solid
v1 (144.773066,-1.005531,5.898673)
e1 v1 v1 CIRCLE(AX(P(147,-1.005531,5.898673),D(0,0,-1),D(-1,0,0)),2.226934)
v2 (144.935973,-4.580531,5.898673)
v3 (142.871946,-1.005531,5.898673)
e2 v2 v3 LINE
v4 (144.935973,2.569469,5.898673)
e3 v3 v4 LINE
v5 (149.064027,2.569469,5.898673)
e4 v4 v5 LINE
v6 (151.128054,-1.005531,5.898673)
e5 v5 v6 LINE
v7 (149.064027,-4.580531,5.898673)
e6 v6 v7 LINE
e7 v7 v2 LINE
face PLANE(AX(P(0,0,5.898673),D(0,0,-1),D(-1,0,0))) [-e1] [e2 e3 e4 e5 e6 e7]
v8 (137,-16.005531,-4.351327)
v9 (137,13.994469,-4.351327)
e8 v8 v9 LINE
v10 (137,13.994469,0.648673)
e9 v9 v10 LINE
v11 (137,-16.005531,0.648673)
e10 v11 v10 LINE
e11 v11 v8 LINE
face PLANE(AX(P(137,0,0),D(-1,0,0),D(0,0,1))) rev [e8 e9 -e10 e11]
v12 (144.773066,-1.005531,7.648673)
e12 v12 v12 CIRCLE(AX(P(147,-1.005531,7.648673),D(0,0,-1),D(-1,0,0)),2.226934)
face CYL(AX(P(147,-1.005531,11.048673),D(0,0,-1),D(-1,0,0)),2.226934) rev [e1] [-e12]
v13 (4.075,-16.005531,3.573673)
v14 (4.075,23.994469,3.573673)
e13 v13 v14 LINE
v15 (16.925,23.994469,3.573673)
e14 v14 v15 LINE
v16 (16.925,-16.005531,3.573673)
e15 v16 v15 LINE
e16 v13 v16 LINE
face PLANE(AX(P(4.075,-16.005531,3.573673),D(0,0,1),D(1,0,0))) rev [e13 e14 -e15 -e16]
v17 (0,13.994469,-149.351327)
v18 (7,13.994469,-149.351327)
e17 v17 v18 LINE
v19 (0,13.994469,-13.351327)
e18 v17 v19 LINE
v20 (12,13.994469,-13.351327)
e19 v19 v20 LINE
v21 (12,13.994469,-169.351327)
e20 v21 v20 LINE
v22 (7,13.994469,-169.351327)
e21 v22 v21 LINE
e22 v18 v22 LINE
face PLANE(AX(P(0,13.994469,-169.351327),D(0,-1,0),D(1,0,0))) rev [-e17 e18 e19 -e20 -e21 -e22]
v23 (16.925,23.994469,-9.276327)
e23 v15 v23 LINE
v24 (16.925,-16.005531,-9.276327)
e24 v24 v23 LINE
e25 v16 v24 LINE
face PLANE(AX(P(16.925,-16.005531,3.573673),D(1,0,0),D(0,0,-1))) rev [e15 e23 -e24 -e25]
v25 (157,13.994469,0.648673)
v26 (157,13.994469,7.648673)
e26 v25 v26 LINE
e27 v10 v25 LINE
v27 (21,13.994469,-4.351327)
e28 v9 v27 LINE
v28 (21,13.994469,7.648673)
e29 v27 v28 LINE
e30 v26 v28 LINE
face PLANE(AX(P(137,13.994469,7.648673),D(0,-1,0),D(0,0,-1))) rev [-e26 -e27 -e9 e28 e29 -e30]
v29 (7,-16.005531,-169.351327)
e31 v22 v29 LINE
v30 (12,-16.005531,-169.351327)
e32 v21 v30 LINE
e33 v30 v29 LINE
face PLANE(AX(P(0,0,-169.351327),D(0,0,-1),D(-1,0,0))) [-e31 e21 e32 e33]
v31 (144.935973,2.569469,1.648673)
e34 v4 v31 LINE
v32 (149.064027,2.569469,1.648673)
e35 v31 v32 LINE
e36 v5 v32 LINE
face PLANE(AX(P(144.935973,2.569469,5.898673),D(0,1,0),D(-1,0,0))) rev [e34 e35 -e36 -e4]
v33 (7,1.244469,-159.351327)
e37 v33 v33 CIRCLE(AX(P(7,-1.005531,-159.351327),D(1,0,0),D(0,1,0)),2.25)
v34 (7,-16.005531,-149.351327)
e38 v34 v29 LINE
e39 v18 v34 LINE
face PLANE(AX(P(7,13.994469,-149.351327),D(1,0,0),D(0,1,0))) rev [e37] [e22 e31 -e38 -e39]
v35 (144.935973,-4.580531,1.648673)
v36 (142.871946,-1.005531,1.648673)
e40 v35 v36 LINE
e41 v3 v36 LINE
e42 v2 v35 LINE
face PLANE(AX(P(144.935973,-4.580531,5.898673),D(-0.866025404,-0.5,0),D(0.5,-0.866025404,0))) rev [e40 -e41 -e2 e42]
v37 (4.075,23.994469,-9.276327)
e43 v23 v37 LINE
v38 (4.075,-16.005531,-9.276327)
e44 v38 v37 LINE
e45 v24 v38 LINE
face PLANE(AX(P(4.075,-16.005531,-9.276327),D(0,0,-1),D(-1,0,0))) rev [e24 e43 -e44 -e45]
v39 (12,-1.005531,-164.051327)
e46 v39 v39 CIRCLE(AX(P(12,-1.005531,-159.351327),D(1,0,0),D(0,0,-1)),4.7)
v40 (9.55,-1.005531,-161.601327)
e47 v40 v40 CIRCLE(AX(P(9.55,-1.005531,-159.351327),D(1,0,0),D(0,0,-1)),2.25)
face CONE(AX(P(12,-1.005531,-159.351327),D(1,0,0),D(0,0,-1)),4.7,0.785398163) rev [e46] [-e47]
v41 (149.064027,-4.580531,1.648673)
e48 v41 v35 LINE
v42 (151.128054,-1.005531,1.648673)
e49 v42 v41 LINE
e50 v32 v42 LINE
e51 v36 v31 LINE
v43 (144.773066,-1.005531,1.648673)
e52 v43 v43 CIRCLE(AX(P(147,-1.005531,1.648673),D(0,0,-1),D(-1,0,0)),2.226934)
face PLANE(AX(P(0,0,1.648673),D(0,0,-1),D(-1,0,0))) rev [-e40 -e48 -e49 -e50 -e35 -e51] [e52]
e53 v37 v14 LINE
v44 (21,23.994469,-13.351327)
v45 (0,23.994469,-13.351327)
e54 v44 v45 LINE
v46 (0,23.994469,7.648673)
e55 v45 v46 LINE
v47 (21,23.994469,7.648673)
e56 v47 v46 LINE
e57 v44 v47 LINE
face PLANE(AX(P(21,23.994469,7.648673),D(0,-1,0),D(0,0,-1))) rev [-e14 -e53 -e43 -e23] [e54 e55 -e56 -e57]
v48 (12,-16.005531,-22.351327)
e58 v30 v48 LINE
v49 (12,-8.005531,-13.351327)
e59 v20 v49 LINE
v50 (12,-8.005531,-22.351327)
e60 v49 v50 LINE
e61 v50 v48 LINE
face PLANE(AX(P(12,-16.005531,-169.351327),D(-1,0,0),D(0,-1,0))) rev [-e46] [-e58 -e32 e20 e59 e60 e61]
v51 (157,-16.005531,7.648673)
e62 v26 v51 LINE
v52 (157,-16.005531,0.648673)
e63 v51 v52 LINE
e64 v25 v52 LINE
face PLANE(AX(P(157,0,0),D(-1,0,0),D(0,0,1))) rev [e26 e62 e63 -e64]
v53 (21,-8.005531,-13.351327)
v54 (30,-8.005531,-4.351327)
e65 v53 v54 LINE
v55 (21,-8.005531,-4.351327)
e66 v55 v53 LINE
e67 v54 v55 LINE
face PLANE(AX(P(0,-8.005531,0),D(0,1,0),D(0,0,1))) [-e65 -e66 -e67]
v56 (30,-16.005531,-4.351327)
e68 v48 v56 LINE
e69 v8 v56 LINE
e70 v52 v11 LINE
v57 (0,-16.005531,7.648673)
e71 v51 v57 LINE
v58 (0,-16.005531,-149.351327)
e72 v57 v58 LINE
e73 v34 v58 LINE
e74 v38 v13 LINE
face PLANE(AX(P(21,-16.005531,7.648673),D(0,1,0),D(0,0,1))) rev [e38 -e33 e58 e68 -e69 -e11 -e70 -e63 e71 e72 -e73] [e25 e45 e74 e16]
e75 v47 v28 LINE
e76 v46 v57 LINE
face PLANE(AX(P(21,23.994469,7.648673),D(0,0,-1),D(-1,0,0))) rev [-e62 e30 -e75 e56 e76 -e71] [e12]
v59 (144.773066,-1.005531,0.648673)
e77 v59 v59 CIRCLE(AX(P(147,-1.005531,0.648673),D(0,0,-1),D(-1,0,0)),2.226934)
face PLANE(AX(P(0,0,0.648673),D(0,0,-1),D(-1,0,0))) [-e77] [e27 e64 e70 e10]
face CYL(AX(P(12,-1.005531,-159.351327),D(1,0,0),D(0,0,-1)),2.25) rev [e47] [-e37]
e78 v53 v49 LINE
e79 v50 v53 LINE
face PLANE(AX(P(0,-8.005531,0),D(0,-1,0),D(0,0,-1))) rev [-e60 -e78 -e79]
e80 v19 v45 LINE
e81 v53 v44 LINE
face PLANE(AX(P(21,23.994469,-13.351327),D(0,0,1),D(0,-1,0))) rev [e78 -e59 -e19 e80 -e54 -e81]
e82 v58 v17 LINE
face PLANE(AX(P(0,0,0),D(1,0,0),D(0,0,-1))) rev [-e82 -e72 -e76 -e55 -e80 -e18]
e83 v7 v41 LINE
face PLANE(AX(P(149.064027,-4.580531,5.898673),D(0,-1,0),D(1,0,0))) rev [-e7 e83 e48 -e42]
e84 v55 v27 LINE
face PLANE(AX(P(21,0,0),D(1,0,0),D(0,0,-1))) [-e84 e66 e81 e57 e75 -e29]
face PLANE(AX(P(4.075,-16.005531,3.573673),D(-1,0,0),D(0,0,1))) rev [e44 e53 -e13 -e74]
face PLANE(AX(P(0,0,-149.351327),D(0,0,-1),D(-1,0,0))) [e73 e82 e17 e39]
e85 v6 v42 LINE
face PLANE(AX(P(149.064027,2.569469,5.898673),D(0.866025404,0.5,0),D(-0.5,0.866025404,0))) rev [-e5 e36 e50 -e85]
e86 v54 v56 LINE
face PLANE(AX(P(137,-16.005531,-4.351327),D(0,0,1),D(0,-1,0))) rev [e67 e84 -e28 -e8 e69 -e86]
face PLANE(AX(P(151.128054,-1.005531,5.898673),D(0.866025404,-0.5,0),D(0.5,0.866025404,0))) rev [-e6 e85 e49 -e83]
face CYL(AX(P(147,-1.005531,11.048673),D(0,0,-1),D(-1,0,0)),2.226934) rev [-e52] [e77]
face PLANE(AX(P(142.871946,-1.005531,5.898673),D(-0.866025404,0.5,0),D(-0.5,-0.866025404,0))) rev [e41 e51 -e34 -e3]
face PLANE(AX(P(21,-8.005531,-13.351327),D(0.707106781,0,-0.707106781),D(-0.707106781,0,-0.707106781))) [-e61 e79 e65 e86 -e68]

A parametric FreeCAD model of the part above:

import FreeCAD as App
import Part
import Sketcher
Q = App.Units.Quantity


def add_polygon(sketch, points):
    """Adds a closed chain of lines whose ends are joined by coincident constraints."""
    first, n = sketch.GeometryCount, len(points)
    for a, b in zip(points, points[1:] + points[:1]):
        sketch.addGeometry(Part.LineSegment(App.Vector(*a, 0), App.Vector(*b, 0)), False)
    for i in range(n):
        sketch.addConstraint(Sketcher.Constraint("Coincident", first + i, 2, first + (i + 1) % n, 1))

doc = App.newDocument("Part")
body = doc.addObject("PartDesign::Body", "Body")

# Sketch on YZ plane
sketch1 = body.newObject("Sketcher::SketchObject", "Sketch")
sketch1.AttachmentSupport = (doc.getObject("YZ_Plane"), [""])
sketch1.MapMode = "FlatFace"
add_polygon(sketch1, [(24, 8), (-16, 8), (-16, -13), (24, -13)])  # lines 0-3
sketch1.addConstraint([
    Sketcher.Constraint("Horizontal", 0),
    Sketcher.Constraint("Vertical", 1),
    Sketcher.Constraint("Horizontal", 2),
    Sketcher.Constraint("Vertical", 3),
    Sketcher.Constraint("DistanceX", 0, 2, 0, 1, 40.0),
    Sketcher.Constraint("DistanceY", 1, 2, 1, 1, 21.0),
    Sketcher.Constraint("DistanceX", 0, 2, -1, 1, 16.005531),
    Sketcher.Constraint("DistanceY", -1, 1, 0, 2, 7.648673),
])
pad1 = body.newObject("PartDesign::Pad", "Pad")
pad1.Profile = sketch1
pad1.Length = 21

# Sketch on XZ plane
sketch2 = body.newObject("Sketcher::SketchObject", "Sketch001")
sketch2.AttachmentSupport = (doc.getObject("XZ_Plane"), [""])
sketch2.MapMode = "FlatFace"
sketch2.AttachmentOffset = App.Placement(App.Vector(0, 0, -23.994469), App.Rotation())
add_polygon(sketch2, [(4, -9), (4, 4), (17, 4), (17, -9)])  # lines 0-3
sketch2.addConstraint([
    Sketcher.Constraint("Vertical", 0),
    Sketcher.Constraint("Horizontal", 1),
    Sketcher.Constraint("Vertical", 2),
    Sketcher.Constraint("Horizontal", 3),
    Sketcher.Constraint("Equal", 3, 0),
    Sketcher.Constraint("DistanceX", 1, 1, 1, 2, 12.85),
    Sketcher.Constraint("DistanceX", -1, 1, 0, 2, 4.075),
    Sketcher.Constraint("DistanceY", -1, 1, 0, 2, 3.573673),
])
pocket1 = body.newObject("PartDesign::Pocket", "Pocket")
pocket1.Profile = sketch2
pocket1.Length = 40
pocket1.Reversed = True

# Sketch on XY plane
sketch3 = body.newObject("Sketcher::SketchObject", "Sketch002")
sketch3.AttachmentSupport = (doc.getObject("XY_Plane"), [""])
sketch3.MapMode = "FlatFace"
sketch3.AttachmentOffset = App.Placement(App.Vector(0, 0, -13.351327), App.Rotation())
add_polygon(sketch3, [(12, 14), (12, -16), (0, -16), (0, 14)])  # lines 0-3
sketch3.addConstraint([
    Sketcher.Constraint("Vertical", 0),
    Sketcher.Constraint("Horizontal", 1),
    Sketcher.Constraint("Vertical", 2),
    Sketcher.Constraint("Horizontal", 3),
    Sketcher.Constraint("PointOnObject", 1, 2, -2),
    Sketcher.Constraint("DistanceX", 1, 2, 1, 1, 12.0),
    Sketcher.Constraint("DistanceY", 0, 2, 0, 1, 30.0),
    Sketcher.Constraint("DistanceY", 0, 2, -1, 1, 16.005531),
])
pad2 = body.newObject("PartDesign::Pad", "Pad001")
pad2.Profile = sketch3
pad2.Length = 156
pad2.Reversed = True

# Sketch on YZ plane
sketch4 = body.newObject("Sketcher::SketchObject", "Sketch003")
sketch4.AttachmentSupport = (doc.getObject("YZ_Plane"), [""])
sketch4.MapMode = "FlatFace"
sketch4.AttachmentOffset = App.Placement(App.Vector(0, 0, 21), App.Rotation())
add_polygon(sketch4, [(14, 8), (-16, 8), (-16, -4), (14, -4)])  # lines 0-3
sketch4.addConstraint([
    Sketcher.Constraint("Horizontal", 0),
    Sketcher.Constraint("Vertical", 1),
    Sketcher.Constraint("Horizontal", 2),
    Sketcher.Constraint("Vertical", 3),
    Sketcher.Constraint("DistanceX", 0, 2, 0, 1, 30.0),
    Sketcher.Constraint("DistanceY", 1, 2, 1, 1, 12.0),
    Sketcher.Constraint("DistanceX", 0, 2, -1, 1, 16.005531),
    Sketcher.Constraint("DistanceY", -1, 1, 0, 2, 7.648673),
])
pad3 = body.newObject("PartDesign::Pad", "Pad002")
pad3.Profile = sketch4
pad3.Length = 116

# Sketch on YZ plane
sketch5 = body.newObject("Sketcher::SketchObject", "Sketch004")
sketch5.AttachmentSupport = (doc.getObject("YZ_Plane"), [""])
sketch5.MapMode = "FlatFace"
sketch5.AttachmentOffset = App.Placement(App.Vector(0, 0, 137), App.Rotation())
add_polygon(sketch5, [(14, 8), (-16, 8), (-16, 2), (14, 2)])  # lines 0-3
sketch5.addConstraint([
    Sketcher.Constraint("Horizontal", 0),
    Sketcher.Constraint("Vertical", 1),
    Sketcher.Constraint("Horizontal", 2),
    Sketcher.Constraint("Vertical", 3),
    Sketcher.Constraint("DistanceX", 0, 2, 0, 1, 30.0),
    Sketcher.Constraint("DistanceY", 1, 2, 1, 1, 6.0),
    Sketcher.Constraint("DistanceX", 0, 2, -1, 1, 16.005531),
    Sketcher.Constraint("DistanceY", -1, 1, 0, 2, 7.648673),
])
pad4 = body.newObject("PartDesign::Pad", "Pad003")
pad4.Profile = sketch5
pad4.Length = 20

# Sketch on XY plane
sketch6 = body.newObject("Sketcher::SketchObject", "Sketch005")
sketch6.AttachmentSupport = (doc.getObject("XY_Plane"), [""])
sketch6.MapMode = "FlatFace"
sketch6.AttachmentOffset = App.Placement(App.Vector(0, 0, -169.351327), App.Rotation())
add_polygon(sketch6, [(7, 14), (7, -16), (0, -16), (0, 14)])  # lines 0-3
sketch6.addConstraint([
    Sketcher.Constraint("Vertical", 0),
    Sketcher.Constraint("Horizontal", 1),
    Sketcher.Constraint("Vertical", 2),
    Sketcher.Constraint("Horizontal", 3),
    Sketcher.Constraint("PointOnObject", 1, 2, -2),
    Sketcher.Constraint("DistanceX", 1, 2, 1, 1, 7.0),
    Sketcher.Constraint("DistanceY", 0, 2, 0, 1, 30.0),
    Sketcher.Constraint("DistanceY", 0, 2, -1, 1, 16.005531),
])
pocket2 = body.newObject("PartDesign::Pocket", "Pocket001")
pocket2.Profile = sketch6
pocket2.Length = 20
pocket2.Reversed = True

# Sketch on XY plane
sketch7 = body.newObject("Sketcher::SketchObject", "Sketch006")
sketch7.AttachmentSupport = (doc.getObject("XY_Plane"), [""])
sketch7.MapMode = "FlatFace"
sketch7.AttachmentOffset = App.Placement(App.Vector(0, 0, 1.648673), App.Rotation())
add_polygon(sketch7, [(149.1, 2.6), (151.1, -1), (149.1, -4.6), (144.9, -4.6), (142.9, -1), (144.9, 2.6)])  # lines 0-5
sketch7.addConstraint([
    Sketcher.Constraint("Horizontal", 2),
    Sketcher.Constraint("Horizontal", 5),
    Sketcher.Constraint("Parallel", 0, 3),
    Sketcher.Constraint("Parallel", 1, 4),
    Sketcher.Constraint("Horizontal", 0, 2, 3, 2),
    Sketcher.Constraint("Vertical", 2, 2, 4, 2),
    Sketcher.Constraint("Vertical", 1, 2, 5, 2),
    Sketcher.Constraint("Angle", 0, Q("-60 deg")),
    Sketcher.Constraint("DistanceY", 2, 2, 4, 2, 7.15),
    Sketcher.Constraint("DistanceX", 2, 2, 2, 1, 4.128054),
    Sketcher.Constraint("DistanceY", 0, 2, -1, 1, 1.005531),
    Sketcher.Constraint("DistanceX", -1, 1, 0, 2, 151.128054),
])
pocket3 = body.newObject("PartDesign::Pocket", "Pocket002")
pocket3.Profile = sketch7
pocket3.Length = 4.25
pocket3.Reversed = True

# Sketch on YZ plane
sketch8 = body.newObject("Sketcher::SketchObject", "Sketch007")
sketch8.AttachmentSupport = (doc.getObject("YZ_Plane"), [""])
sketch8.MapMode = "FlatFace"
sketch8.AttachmentOffset = App.Placement(App.Vector(0, 0, 12), App.Rotation())
sketch8.addGeometry(Part.Circle(App.Vector(-1, -159.4, 0), App.Vector(0, 0, 1), 2.2), False)
sketch8.addConstraint([
    Sketcher.Constraint("Diameter", 0, 4.5),
    Sketcher.Constraint("DistanceX", 0, 3, -1, 1, 1.005531),
    Sketcher.Constraint("DistanceY", 0, 3, -1, 1, 159.351327),
])
doc.recompute()
hole = body.newObject("PartDesign::Hole", "Hole")
hole.Profile = sketch8
hole.ThreadType = "None"
hole.Diameter = 4.5
hole.DepthType = "Dimension"
hole.Depth = 16
hole.DrillPoint = "Angled"
hole.DrillPointAngle = 118
hole.HoleCutType = "Countersink"
hole.HoleCutDiameter = 9.4
hole.HoleCutCountersinkAngle = 90

# Sketch on XZ plane
sketch9 = body.newObject("Sketcher::SketchObject", "Sketch008")
sketch9.AttachmentSupport = (doc.getObject("XZ_Plane"), [""])
sketch9.MapMode = "FlatFace"
sketch9.AttachmentOffset = App.Placement(App.Vector(0, 0, 16.005531), App.Rotation())
add_polygon(sketch9, [(21, -13), (30, -4), (21, -4)])  # lines 0-2
sketch9.addConstraint([
    Sketcher.Constraint("Horizontal", 1),
    Sketcher.Constraint("Vertical", 2),
    Sketcher.Constraint("Equal", 1, 2),
    Sketcher.Constraint("DistanceX", 1, 2, 1, 1, 9.0),
    Sketcher.Constraint("DistanceX", -1, 1, 0, 2, 30.0),
    Sketcher.Constraint("DistanceY", 0, 2, -1, 1, 4.351327),
])
pad5 = body.newObject("PartDesign::Pad", "Pad004")
pad5.Profile = sketch9
pad5.Length = 8
pad5.Reversed = True

# Sketch on XZ plane
sketch10 = body.newObject("Sketcher::SketchObject", "Sketch009")
sketch10.AttachmentSupport = (doc.getObject("XZ_Plane"), [""])
sketch10.MapMode = "FlatFace"
sketch10.AttachmentOffset = App.Placement(App.Vector(0, 0, 16.005531), App.Rotation())
add_polygon(sketch10, [(12, -22), (21, -13), (12, -13)])  # lines 0-2
sketch10.addConstraint([
    Sketcher.Constraint("Horizontal", 1),
    Sketcher.Constraint("Vertical", 2),
    Sketcher.Constraint("Equal", 1, 2),
    Sketcher.Constraint("DistanceX", 1, 2, 1, 1, 9.0),
    Sketcher.Constraint("DistanceX", -1, 1, 0, 2, 21.0),
    Sketcher.Constraint("DistanceY", 0, 2, -1, 1, 13.351327),
])
pad6 = body.newObject("PartDesign::Pad", "Pad005")
pad6.Profile = sketch10
pad6.Length = 8
pad6.Reversed = True

# Sketch on XY plane
sketch11 = body.newObject("Sketcher::SketchObject", "Sketch010")
sketch11.AttachmentSupport = (doc.getObject("XY_Plane"), [""])
sketch11.MapMode = "FlatFace"
sketch11.AttachmentOffset = App.Placement(App.Vector(0, 0, 1.648673), App.Rotation())
add_polygon(sketch11, [(157, 14), (157, -16), (137, -16), (137, 14)])  # lines 0-3
sketch11.addConstraint([
    Sketcher.Constraint("Vertical", 0),
    Sketcher.Constraint("Horizontal", 1),
    Sketcher.Constraint("Vertical", 2),
    Sketcher.Constraint("Horizontal", 3),
    Sketcher.Constraint("DistanceX", 1, 2, 1, 1, 20.0),
    Sketcher.Constraint("DistanceY", 0, 2, 0, 1, 30.0),
    Sketcher.Constraint("DistanceX", -1, 1, 0, 2, 157.0),
    Sketcher.Constraint("DistanceY", 0, 2, -1, 1, 16.005531),
])
pad7 = body.newObject("PartDesign::Pad", "Pad006")
pad7.Profile = sketch11
pad7.Length = 1
pad7.Reversed = True

# Sketch on XY plane
sketch12 = body.newObject("Sketcher::SketchObject", "Sketch011")
sketch12.AttachmentSupport = (doc.getObject("XY_Plane"), [""])
sketch12.MapMode = "FlatFace"
sketch12.AttachmentOffset = App.Placement(App.Vector(0, 0, 0.648673), App.Rotation())
sketch12.addGeometry(Part.Circle(App.Vector(147, -1, 0), App.Vector(0, 0, 1), 2.2), False)
sketch12.addConstraint([
    Sketcher.Constraint("DistanceX", -1, 1, 0, 3, 147.0),
    Sketcher.Constraint("Diameter", 0, 4.453868),
    Sketcher.Constraint("DistanceY", 0, 3, -1, 1, 1.005531),
])
pocket4 = body.newObject("PartDesign::Pocket", "Pocket003")
pocket4.Profile = sketch12
pocket4.Length = 10.4
pocket4.Reversed = True

doc.recompute()
